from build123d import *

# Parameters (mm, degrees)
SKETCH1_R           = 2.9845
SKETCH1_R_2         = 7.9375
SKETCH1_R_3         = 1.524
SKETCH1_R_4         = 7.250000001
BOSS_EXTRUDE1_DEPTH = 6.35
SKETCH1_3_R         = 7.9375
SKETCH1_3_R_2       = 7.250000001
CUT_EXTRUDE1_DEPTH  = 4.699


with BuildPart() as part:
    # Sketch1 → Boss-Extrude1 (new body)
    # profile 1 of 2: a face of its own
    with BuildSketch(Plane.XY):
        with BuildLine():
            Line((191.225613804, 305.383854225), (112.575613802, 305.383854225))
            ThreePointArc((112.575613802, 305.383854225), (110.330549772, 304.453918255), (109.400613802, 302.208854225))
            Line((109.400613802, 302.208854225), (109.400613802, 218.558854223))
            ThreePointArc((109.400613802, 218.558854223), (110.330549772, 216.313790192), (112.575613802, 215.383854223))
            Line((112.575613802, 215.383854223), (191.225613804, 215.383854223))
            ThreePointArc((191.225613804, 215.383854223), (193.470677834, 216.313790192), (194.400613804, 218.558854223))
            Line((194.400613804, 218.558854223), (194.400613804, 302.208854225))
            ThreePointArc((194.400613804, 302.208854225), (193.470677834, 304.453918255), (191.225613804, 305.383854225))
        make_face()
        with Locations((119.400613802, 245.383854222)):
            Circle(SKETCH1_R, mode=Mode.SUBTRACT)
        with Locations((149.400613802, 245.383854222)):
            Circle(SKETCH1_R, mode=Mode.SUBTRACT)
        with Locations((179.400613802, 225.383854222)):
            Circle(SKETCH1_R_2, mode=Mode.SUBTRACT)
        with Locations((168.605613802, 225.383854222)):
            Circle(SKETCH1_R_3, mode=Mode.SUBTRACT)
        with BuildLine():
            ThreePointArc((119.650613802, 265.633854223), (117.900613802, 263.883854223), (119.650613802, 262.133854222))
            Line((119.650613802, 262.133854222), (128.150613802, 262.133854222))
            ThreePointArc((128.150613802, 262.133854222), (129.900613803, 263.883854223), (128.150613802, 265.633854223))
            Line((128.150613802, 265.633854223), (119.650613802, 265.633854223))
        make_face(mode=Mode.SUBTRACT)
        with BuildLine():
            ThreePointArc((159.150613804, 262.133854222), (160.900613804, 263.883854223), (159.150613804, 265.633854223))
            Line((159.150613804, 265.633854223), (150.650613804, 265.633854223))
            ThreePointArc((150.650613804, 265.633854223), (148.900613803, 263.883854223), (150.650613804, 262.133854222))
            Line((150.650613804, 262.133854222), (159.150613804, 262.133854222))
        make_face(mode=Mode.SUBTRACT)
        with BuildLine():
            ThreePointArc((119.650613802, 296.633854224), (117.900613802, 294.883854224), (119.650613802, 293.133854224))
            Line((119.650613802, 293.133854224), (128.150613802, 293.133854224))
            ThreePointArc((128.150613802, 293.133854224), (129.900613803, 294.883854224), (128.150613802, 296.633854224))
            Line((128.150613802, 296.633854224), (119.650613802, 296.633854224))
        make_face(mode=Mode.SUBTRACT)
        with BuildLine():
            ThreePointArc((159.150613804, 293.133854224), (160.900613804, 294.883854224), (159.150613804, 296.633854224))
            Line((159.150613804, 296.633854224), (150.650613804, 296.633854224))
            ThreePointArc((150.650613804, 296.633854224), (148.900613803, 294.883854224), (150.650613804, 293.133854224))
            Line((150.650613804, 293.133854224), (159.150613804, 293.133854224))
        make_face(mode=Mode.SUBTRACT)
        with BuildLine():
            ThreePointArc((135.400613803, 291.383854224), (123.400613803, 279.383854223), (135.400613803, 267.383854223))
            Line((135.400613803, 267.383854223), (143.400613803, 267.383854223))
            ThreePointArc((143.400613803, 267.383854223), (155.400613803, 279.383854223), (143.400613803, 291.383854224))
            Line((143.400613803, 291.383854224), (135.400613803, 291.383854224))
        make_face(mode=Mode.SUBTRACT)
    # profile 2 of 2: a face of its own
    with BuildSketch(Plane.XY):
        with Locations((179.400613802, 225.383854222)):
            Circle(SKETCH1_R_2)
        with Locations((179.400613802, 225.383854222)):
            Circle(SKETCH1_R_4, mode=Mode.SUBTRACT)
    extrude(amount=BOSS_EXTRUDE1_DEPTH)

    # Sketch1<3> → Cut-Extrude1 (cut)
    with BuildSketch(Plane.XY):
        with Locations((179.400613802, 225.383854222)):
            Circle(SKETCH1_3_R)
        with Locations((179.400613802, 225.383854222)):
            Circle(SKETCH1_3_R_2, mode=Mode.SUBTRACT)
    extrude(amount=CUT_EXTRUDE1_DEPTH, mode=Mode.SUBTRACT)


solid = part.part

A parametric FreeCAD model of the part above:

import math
import FreeCAD as App
import Part
import Sketcher
Q = App.Units.Quantity

doc = App.newDocument("Part")
body = doc.addObject("PartDesign::Body", "Body")

# Sketch on XY plane
sketch1 = body.newObject("Sketcher::SketchObject", "Sketch")
sketch1.AttachmentSupport = (doc.getObject("XY_Plane"), [""])
sketch1.MapMode = "FlatFace"
sketch1.addGeometry([
    Part.LineSegment(App.Vector(191.2, 305.4, 0), App.Vector(112.6, 305.4, 0)),  # 0
    Part.ArcOfCircle(Part.Circle(App.Vector(112.6, 302.2, 0), App.Vector(0, 0, 1), 3.2), math.radians(90), math.radians(180)),  # 1
    Part.LineSegment(App.Vector(109.4, 302.2, 0), App.Vector(109.4, 218.6, 0)),  # 2
    Part.ArcOfCircle(Part.Circle(App.Vector(112.6, 218.6, 0), App.Vector(0, 0, 1), 3.2), math.radians(180), math.radians(270)),  # 3
    Part.LineSegment(App.Vector(112.6, 215.4, 0), App.Vector(191.2, 215.4, 0)),  # 4
    Part.ArcOfCircle(Part.Circle(App.Vector(191.2, 218.6, 0), App.Vector(0, 0, 1), 3.2), math.radians(-90), math.radians(0)),  # 5
    Part.LineSegment(App.Vector(194.4, 218.6, 0), App.Vector(194.4, 302.2, 0)),  # 6
    Part.ArcOfCircle(Part.Circle(App.Vector(191.2, 302.2, 0), App.Vector(0, 0, 1), 3.2), math.radians(0), math.radians(90)),  # 7
    Part.Circle(App.Vector(119.4, 245.4, 0), App.Vector(0, 0, 1), 3),  # 8
    Part.Circle(App.Vector(149.4, 245.4, 0), App.Vector(0, 0, 1), 3),  # 9
    Part.Circle(App.Vector(168.6, 225.4, 0), App.Vector(0, 0, 1), 1.5),  # 10
    Part.ArcOfCircle(Part.Circle(App.Vector(119.7, 263.9, 0), App.Vector(0, 0, 1), 1.8), math.radians(90), math.radians(270)),  # 11
    Part.LineSegment(App.Vector(119.7, 265.6, 0), App.Vector(128.2, 265.6, 0)),  # 12
    Part.ArcOfCircle(Part.Circle(App.Vector(128.2, 263.9, 0), App.Vector(0, 0, 1), 1.8), math.radians(-90), math.radians(90)),  # 13
    Part.LineSegment(App.Vector(128.2, 262.1, 0), App.Vector(119.7, 262.1, 0)),  # 14
    Part.ArcOfCircle(Part.Circle(App.Vector(119.7, 294.9, 0), App.Vector(0, 0, 1), 1.8), math.radians(90), math.radians(270)),  # 15
    Part.LineSegment(App.Vector(119.7, 296.6, 0), App.Vector(128.2, 296.6, 0)),  # 16
    Part.ArcOfCircle(Part.Circle(App.Vector(128.2, 294.9, 0), App.Vector(0, 0, 1), 1.8), math.radians(-90), math.radians(90)),  # 17
    Part.LineSegment(App.Vector(128.2, 293.1, 0), App.Vector(119.7, 293.1, 0)),  # 18
    Part.ArcOfCircle(Part.Circle(App.Vector(135.4, 279.4, 0), App.Vector(0, 0, 1), 12), math.radians(90), math.radians(270)),  # 19
    Part.LineSegment(App.Vector(135.4, 291.4, 0), App.Vector(143.4, 291.4, 0)),  # 20
    Part.ArcOfCircle(Part.Circle(App.Vector(143.4, 279.4, 0), App.Vector(0, 0, 1), 12), math.radians(-90), math.radians(90)),  # 21
    Part.LineSegment(App.Vector(143.4, 267.4, 0), App.Vector(135.4, 267.4, 0)),  # 22
    Part.ArcOfCircle(Part.Circle(App.Vector(159.2, 263.9, 0), App.Vector(0, 0, 1), 1.8), math.radians(-90), math.radians(90)),  # 23
    Part.LineSegment(App.Vector(159.2, 262.1, 0), App.Vector(150.7, 262.1, 0)),  # 24
    Part.ArcOfCircle(Part.Circle(App.Vector(150.7, 263.9, 0), App.Vector(0, 0, 1), 1.8), math.radians(90), math.radians(270)),  # 25
    Part.LineSegment(App.Vector(150.7, 265.6, 0), App.Vector(159.2, 265.6, 0)),  # 26
    Part.ArcOfCircle(Part.Circle(App.Vector(159.2, 294.9, 0), App.Vector(0, 0, 1), 1.8), math.radians(-90), math.radians(90)),  # 27
    Part.LineSegment(App.Vector(159.2, 293.1, 0), App.Vector(150.7, 293.1, 0)),  # 28
    Part.ArcOfCircle(Part.Circle(App.Vector(150.7, 294.9, 0), App.Vector(0, 0, 1), 1.8), math.radians(90), math.radians(270)),  # 29
    Part.LineSegment(App.Vector(150.7, 296.6, 0), App.Vector(159.2, 296.6, 0)),  # 30
    Part.Circle(App.Vector(179.4, 225.4, 0), App.Vector(0, 0, 1), 7.3),  # 31
], False)
sketch1.addConstraint([
    Sketcher.Constraint("Tangent", 0, 2, 1, 1),
    Sketcher.Constraint("Tangent", 1, 2, 2, 1),
    Sketcher.Constraint("Tangent", 2, 2, 3, 1),
    Sketcher.Constraint("Tangent", 3, 2, 4, 1),
    Sketcher.Constraint("Tangent", 4, 2, 5, 1),
    Sketcher.Constraint("Tangent", 5, 2, 6, 1),
    Sketcher.Constraint("Tangent", 6, 2, 7, 1),
    Sketcher.Constraint("Tangent", 7, 2, 0, 1),
    Sketcher.Constraint("Tangent", 11, 1, 12, 1),
    Sketcher.Constraint("Tangent", 12, 2, 13, 2),
    Sketcher.Constraint("Tangent", 13, 1, 14, 1),
    Sketcher.Constraint("Tangent", 14, 2, 11, 2),
    Sketcher.Constraint("Tangent", 15, 1, 16, 1),
    Sketcher.Constraint("Tangent", 16, 2, 17, 2),
    Sketcher.Constraint("Tangent", 17, 1, 18, 1),
    Sketcher.Constraint("Tangent", 18, 2, 15, 2),
    Sketcher.Constraint("Tangent", 19, 1, 20, 1),
    Sketcher.Constraint("Tangent", 20, 2, 21, 2),
    Sketcher.Constraint("Tangent", 21, 1, 22, 1),
    Sketcher.Constraint("Tangent", 22, 2, 19, 2),
    Sketcher.Constraint("Tangent", 23, 1, 24, 1),
    Sketcher.Constraint("Tangent", 24, 2, 25, 2),
    Sketcher.Constraint("Tangent", 25, 1, 26, 1),
    Sketcher.Constraint("Tangent", 26, 2, 23, 2),
    Sketcher.Constraint("Tangent", 27, 1, 28, 1),
    Sketcher.Constraint("Tangent", 28, 2, 29, 2),
    Sketcher.Constraint("Tangent", 29, 1, 30, 1),
    Sketcher.Constraint("Tangent", 30, 2, 27, 2),
    Sketcher.Constraint("Horizontal", 0),
    Sketcher.Constraint("Vertical", 2),
    Sketcher.Constraint("Horizontal", 4),
    Sketcher.Constraint("Vertical", 6),
    Sketcher.Constraint("Horizontal", 12),
    Sketcher.Constraint("Horizontal", 14),
    Sketcher.Constraint("Horizontal", 16),
    Sketcher.Constraint("Horizontal", 18),
    Sketcher.Constraint("Horizontal", 20),
    Sketcher.Constraint("Horizontal", 22),
    Sketcher.Constraint("Horizontal", 24),
    Sketcher.Constraint("Horizontal", 26),
    Sketcher.Constraint("Horizontal", 28),
    Sketcher.Constraint("Horizontal", 30),
    Sketcher.Constraint("Equal", 1, 3),
    Sketcher.Constraint("Equal", 3, 5),
    Sketcher.Constraint("Equal", 5, 7),
    Sketcher.Constraint("Equal", 8, 9),
    Sketcher.Constraint("Equal", 13, 15),
    Sketcher.Constraint("Equal", 17, 23),
    Sketcher.Constraint("Equal", 25, 27),
    Sketcher.Constraint("Horizontal", 8, 3, 9, 3),
    Sketcher.Constraint("Horizontal", 13, 3, 23, 3),
    Sketcher.Constraint("Horizontal", 17, 3, 27, 3),
    Sketcher.Constraint("Horizontal", 10, 3, 31, 3),
    Sketcher.Constraint("Vertical", 11, 3, 15, 3),
    Sketcher.Constraint("Vertical", 13, 3, 17, 3),
    Sketcher.Constraint("Vertical", 23, 3, 27, 3),
    Sketcher.Constraint("Vertical", 25, 3, 29, 3),
    Sketcher.Constraint("Equal", 18, 24),
    Sketcher.Constraint("Radius", 19, Q("12 mm")),
    Sketcher.Constraint("Diameter", 31, Q("14.5 mm")),
    Sketcher.Constraint("DistanceX", 20, 1, 20, 2, Q("8 mm")),
    Sketcher.Constraint("Radius", 11, Q("1.75 mm")),
    Sketcher.Constraint("Diameter", 8, Q("5.969 mm")),
    Sketcher.Constraint("Diameter", 10, Q("3.048 mm")),
    Sketcher.Constraint("DistanceX", 12, 1, 12, 2, Q("8.5 mm")),
    Sketcher.Constraint("Radius", 1, Q("3.175 mm")),
    Sketcher.Constraint("DistanceX", 8, 3, 9, 3, Q("30 mm")),
    Sketcher.Constraint("DistanceY", 10, 3, 9, 3, Q("20 mm")),
    Sketcher.Constraint("DistanceY", 11, 3, 15, 3, Q("31 mm")),
    Sketcher.Constraint("DistanceX", 13, 3, 23, 3, Q("31 mm")),
    Sketcher.Constraint("DistanceX", 9, 3, 31, 3, Q("30 mm")),
    Sketcher.Constraint("DistanceY", 19, 3, 0, 2, Q("26 mm")),
    Sketcher.Constraint("DistanceX", 1, 2, 19, 3, Q("26 mm")),
    Sketcher.Constraint("DistanceX", 2, 2, 8, 3, Q("10 mm")),
    Sketcher.Constraint("DistanceY", 3, 2, 8, 3, Q("30 mm")),
    Sketcher.Constraint("DistanceX", 31, 3, 5, 2, Q("15 mm")),
    Sketcher.Constraint("DistanceY", 2, 2, 2, 1, Q("83.65 mm")),
    Sketcher.Constraint("DistanceY", 8, 3, 11, 3, Q("18.5 mm")),
    Sketcher.Constraint("DistanceX", 10, 3, 5, 3, Q("22.62 mm")),
    Sketcher.Constraint("DistanceX", 8, 3, 11, 3, Q("0.25 mm")),
    Sketcher.Constraint("DistanceX", -1, 1, 1, 3, Q("112.575614 mm")),
    Sketcher.Constraint("DistanceY", -1, 1, 1, 3, Q("302.208854 mm")),
])
pad1 = body.newObject("PartDesign::Pad", "Pad")
pad1.Profile = sketch1
pad1.Length = 6.35

# Sketch on XY plane
sketch2 = body.newObject("Sketcher::SketchObject", "Sketch001")
sketch2.AttachmentSupport = (doc.getObject("XY_Plane"), [""])
sketch2.MapMode = "FlatFace"
sketch2.addGeometry([
    Part.Circle(App.Vector(179, 225, 0), App.Vector(0, 0, 1), 8),
    Part.Circle(App.Vector(179, 225, 0), App.Vector(0, 0, 1), 7),
], False)
sketch2.addConstraint([
    Sketcher.Constraint("Coincident", 1, 3, 0, 3),
    Sketcher.Constraint("Diameter", 1, Q("14.5 mm")),
    Sketcher.Constraint("Diameter", 0, Q("15.875 mm")),
    Sketcher.Constraint("DistanceX", -1, 1, 0, 3, Q("179.400614 mm")),
    Sketcher.Constraint("DistanceY", -1, 1, 0, 3, Q("225.383854 mm")),
])
pocket1 = body.newObject("PartDesign::Pocket", "Pocket")
pocket1.Profile = sketch2
pocket1.Length = 4.699
pocket1.Reversed = True

doc.recompute()
